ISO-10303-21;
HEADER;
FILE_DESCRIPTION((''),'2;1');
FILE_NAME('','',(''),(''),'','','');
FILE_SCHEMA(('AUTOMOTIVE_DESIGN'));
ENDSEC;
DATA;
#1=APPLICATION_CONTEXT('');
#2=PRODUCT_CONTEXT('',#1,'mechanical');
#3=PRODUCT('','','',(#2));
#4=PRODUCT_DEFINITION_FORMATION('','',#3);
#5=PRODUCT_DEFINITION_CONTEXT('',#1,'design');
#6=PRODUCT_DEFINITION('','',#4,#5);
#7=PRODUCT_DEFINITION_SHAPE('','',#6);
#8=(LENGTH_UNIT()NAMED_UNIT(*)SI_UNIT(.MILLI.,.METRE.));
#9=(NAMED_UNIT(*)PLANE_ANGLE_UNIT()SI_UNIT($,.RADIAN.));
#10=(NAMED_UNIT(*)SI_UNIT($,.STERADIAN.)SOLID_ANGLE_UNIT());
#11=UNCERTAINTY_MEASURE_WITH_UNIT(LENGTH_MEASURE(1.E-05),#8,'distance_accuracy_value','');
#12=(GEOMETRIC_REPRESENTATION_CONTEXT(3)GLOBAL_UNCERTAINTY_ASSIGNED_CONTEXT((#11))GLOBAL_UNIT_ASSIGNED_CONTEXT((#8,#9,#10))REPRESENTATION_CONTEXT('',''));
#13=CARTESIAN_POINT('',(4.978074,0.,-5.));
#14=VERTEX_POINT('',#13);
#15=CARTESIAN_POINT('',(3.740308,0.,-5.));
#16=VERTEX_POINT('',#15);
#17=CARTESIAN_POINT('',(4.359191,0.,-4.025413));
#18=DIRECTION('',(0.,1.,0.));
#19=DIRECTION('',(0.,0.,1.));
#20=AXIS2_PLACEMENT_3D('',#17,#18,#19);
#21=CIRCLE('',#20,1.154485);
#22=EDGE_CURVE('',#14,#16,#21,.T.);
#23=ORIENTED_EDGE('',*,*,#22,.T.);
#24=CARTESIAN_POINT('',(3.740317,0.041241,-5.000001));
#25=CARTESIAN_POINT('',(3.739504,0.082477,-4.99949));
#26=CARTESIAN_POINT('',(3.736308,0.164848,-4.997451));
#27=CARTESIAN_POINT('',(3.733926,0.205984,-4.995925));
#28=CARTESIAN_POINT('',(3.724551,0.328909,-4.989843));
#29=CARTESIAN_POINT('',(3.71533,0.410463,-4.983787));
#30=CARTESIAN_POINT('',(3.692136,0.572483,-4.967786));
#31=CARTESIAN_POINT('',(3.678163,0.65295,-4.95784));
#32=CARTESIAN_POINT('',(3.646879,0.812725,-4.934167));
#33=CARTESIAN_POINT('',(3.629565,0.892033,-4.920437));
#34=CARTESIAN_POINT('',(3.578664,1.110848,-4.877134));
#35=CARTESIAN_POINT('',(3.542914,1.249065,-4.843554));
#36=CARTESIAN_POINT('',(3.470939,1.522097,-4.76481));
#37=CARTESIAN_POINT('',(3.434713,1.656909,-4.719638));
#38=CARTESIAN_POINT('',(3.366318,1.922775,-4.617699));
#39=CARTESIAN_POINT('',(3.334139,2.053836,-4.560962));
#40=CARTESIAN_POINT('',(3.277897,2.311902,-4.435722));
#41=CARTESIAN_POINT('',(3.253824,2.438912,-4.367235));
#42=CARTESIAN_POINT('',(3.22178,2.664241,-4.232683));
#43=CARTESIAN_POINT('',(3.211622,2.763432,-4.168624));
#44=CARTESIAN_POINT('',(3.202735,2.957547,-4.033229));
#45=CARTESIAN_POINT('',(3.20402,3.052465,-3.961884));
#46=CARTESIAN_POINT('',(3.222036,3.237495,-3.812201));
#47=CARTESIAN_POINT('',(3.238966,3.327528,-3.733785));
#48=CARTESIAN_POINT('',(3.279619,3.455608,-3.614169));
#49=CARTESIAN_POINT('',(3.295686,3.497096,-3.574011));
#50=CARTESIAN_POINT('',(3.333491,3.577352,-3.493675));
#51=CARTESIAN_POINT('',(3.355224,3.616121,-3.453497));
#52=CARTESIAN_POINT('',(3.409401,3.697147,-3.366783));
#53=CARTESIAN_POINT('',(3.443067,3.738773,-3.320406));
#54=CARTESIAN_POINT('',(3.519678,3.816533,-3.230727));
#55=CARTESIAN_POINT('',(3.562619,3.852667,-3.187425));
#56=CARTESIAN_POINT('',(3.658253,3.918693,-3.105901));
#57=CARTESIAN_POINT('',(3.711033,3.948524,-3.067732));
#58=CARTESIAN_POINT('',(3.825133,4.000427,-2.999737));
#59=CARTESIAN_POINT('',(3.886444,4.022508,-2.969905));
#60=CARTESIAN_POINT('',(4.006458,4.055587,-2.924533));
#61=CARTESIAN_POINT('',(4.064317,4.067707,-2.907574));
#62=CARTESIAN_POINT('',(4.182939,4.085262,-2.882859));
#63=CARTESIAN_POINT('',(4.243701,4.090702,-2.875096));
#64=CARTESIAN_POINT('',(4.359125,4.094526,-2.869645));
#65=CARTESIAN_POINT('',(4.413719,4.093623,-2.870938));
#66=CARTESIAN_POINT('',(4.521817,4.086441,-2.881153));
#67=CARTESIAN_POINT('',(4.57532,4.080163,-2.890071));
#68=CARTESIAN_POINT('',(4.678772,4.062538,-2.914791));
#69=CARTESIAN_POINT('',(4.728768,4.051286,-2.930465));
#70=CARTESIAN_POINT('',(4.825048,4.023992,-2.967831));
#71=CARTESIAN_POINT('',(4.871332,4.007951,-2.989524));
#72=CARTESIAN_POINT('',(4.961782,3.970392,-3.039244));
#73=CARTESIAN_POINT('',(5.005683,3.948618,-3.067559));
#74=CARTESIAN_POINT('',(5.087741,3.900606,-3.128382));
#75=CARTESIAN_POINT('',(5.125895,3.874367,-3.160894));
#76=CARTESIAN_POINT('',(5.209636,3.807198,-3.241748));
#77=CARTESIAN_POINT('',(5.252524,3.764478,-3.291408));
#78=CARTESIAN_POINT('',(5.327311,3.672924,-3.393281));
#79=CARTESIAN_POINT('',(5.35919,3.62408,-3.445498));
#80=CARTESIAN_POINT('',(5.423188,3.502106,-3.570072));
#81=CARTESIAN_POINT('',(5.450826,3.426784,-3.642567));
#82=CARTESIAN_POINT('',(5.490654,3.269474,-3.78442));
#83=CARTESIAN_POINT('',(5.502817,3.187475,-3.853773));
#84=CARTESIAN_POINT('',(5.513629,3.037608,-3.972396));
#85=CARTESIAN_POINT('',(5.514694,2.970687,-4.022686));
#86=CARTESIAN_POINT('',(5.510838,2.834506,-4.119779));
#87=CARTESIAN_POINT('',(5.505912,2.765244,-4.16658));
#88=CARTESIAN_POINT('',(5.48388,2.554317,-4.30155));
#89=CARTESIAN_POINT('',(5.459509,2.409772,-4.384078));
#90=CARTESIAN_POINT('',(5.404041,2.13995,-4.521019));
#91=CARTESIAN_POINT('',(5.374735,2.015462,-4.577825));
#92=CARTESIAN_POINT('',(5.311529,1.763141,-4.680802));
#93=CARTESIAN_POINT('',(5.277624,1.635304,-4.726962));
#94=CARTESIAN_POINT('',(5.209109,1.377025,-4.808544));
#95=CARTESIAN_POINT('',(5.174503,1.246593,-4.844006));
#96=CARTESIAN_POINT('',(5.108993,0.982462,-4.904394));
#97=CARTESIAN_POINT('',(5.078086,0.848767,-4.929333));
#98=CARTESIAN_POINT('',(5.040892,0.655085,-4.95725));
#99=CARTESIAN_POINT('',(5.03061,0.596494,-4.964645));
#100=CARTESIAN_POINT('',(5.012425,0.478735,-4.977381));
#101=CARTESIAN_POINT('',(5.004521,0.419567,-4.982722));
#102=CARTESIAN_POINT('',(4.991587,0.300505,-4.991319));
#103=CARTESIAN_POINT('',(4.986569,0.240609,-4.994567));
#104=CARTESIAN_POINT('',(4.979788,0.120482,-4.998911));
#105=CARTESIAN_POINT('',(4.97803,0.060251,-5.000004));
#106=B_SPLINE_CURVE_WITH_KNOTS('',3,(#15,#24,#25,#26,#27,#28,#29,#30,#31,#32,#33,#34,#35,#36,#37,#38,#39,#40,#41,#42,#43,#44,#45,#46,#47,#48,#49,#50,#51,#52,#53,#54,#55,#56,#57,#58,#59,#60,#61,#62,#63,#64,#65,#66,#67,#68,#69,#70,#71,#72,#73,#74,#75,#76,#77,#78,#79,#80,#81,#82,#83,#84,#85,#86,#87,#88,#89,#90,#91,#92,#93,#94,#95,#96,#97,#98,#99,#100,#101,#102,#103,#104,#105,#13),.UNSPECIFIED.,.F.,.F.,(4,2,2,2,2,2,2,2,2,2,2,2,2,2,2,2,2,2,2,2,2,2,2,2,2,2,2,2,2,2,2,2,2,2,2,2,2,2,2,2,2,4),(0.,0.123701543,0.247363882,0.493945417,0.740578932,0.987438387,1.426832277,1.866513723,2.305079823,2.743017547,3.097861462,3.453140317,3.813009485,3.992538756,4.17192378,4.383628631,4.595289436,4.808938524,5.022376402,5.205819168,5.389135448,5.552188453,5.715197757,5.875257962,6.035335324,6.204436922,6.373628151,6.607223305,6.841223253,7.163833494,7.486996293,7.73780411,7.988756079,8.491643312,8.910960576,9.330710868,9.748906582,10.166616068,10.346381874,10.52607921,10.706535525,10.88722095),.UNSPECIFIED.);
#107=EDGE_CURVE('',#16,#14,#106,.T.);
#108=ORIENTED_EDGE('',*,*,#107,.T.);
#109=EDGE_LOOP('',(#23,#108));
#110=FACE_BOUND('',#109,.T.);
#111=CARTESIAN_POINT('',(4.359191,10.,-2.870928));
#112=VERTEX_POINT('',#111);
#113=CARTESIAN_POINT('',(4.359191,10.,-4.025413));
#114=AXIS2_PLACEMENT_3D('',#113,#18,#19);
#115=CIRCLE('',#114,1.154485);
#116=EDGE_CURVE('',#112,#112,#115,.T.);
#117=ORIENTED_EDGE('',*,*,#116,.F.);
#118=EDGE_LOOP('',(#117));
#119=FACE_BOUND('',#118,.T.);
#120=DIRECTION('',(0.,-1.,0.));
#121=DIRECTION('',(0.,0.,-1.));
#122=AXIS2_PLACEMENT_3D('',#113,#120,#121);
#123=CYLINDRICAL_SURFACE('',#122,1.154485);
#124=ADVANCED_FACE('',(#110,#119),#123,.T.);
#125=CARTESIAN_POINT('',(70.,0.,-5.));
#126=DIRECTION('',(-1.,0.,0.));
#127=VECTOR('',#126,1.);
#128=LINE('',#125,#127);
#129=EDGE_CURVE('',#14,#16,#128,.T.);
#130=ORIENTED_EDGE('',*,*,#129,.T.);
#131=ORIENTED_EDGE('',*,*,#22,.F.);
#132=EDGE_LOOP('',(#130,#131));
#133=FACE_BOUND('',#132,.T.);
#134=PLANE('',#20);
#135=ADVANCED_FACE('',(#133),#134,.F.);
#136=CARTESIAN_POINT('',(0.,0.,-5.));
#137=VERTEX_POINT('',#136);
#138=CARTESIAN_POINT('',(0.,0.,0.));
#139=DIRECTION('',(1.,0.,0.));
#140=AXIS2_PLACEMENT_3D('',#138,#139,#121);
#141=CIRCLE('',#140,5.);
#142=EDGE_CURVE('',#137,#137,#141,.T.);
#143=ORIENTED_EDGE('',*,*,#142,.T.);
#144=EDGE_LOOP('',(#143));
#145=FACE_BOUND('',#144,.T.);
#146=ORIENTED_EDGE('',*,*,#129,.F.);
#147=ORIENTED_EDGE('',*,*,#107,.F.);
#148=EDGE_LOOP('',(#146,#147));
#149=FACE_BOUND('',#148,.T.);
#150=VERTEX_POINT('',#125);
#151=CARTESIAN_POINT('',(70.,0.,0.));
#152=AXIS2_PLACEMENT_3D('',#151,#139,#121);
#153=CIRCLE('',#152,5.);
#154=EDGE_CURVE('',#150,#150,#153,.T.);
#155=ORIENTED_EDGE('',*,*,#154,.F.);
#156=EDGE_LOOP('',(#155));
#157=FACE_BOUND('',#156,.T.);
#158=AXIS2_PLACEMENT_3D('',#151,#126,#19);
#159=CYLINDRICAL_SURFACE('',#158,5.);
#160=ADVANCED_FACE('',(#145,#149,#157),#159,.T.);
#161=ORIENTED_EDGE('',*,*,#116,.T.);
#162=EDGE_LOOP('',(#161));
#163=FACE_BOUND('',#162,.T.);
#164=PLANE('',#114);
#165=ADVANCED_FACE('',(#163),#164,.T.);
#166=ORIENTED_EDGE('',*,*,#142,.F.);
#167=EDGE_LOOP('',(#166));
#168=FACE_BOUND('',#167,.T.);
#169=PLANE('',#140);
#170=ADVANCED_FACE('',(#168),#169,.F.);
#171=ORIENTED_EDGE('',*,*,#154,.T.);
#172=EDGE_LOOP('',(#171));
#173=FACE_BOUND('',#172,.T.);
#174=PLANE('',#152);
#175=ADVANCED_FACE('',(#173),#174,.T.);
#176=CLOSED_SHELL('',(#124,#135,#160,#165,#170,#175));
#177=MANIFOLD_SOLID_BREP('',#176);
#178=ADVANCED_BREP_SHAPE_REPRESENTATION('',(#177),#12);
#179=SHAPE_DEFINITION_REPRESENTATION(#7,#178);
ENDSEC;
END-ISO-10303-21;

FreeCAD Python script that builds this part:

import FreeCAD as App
import Part
import Sketcher

V = App.Vector

doc = App.newDocument("Part")
body = doc.addObject("PartDesign::Body", "Body")

# Sketch on YZ plane
sketch1 = doc.addObject("Sketcher::SketchObject", "Sketch")
body.addObject(sketch1)
sketch1.AttachmentSupport = (doc.YZ_Plane, [""])
sketch1.MapMode = "FlatFace"
sketch1.addGeometry(Part.Circle(V(0, 0, 0), V(0, 0, 1), 5), False)
sketch1.addConstraint([
    Sketcher.Constraint("Coincident", 0, 3, -1, 1),
    Sketcher.Constraint("Diameter", 0, 10.0),
])
pad1 = doc.addObject("PartDesign::Pad", "Pad")
body.addObject(pad1)
pad1.Profile = sketch1
pad1.Length = 70

# Sketch on XZ plane
sketch2 = doc.addObject("Sketcher::SketchObject", "Sketch001")
body.addObject(sketch2)
sketch2.AttachmentSupport = (doc.XZ_Plane, [""])
sketch2.MapMode = "FlatFace"
sketch2.addGeometry(Part.Circle(V(4.4, -4, 0), V(0, 0, 1), 1.2), False)
sketch2.addConstraint([
    Sketcher.Constraint("Diameter", 0, 2.30897),
    Sketcher.Constraint("DistanceX", -1, 1, 0, 3, 4.359191),
    Sketcher.Constraint("DistanceY", 0, 3, -1, 1, 4.025413),
])
pad2 = doc.addObject("PartDesign::Pad", "Pad001")
body.addObject(pad2)
pad2.Profile = sketch2
pad2.Length = 10
pad2.Reversed = True

doc.recompute()
